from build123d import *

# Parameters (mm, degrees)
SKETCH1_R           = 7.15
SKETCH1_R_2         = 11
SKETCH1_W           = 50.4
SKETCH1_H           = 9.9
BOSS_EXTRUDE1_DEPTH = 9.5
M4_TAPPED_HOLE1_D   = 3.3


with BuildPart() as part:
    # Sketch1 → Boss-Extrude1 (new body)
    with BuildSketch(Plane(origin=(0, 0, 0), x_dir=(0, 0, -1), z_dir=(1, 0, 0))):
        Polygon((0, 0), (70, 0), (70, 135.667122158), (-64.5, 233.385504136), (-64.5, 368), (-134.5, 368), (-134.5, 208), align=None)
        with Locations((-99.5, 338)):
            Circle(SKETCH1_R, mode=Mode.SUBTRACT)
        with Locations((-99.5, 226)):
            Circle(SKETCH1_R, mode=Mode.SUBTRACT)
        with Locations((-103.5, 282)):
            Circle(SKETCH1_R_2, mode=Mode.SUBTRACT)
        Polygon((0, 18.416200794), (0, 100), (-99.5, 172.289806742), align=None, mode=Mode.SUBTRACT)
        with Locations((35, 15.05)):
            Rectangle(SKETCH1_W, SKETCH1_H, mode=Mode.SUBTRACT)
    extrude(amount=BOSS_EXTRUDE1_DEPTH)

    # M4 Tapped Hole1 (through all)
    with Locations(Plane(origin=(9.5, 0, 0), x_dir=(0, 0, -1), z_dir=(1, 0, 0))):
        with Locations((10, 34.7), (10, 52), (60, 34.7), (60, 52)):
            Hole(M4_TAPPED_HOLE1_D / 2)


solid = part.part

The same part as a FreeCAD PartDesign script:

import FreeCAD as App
import Part
import Sketcher
from FreeCAD import Vector


def add_polygon(sketch, points):
    """Adds a closed chain of lines whose ends are joined by coincident constraints."""
    first, n = sketch.GeometryCount, len(points)
    for a, b in zip(points, points[1:] + points[:1]):
        sketch.addGeometry(Part.LineSegment(App.Vector(*a, 0), App.Vector(*b, 0)), False)
    for i in range(n):
        sketch.addConstraint(Sketcher.Constraint("Coincident", first + i, 2, first + (i + 1) % n, 1))

doc = App.newDocument("Part")
body = doc.addObject("PartDesign::Body", "Body")

# Sketch on YZ plane
sketch1 = body.newObject("Sketcher::SketchObject", "Sketch")
sketch1.AttachmentSupport = (doc.getObject("YZ_Plane"), [""])
sketch1.MapMode = "FlatFace"
add_polygon(sketch1, [(0, 0), (0, -70), (135.667122, -70), (233.385504, 64.5), (368, 64.5), (368, 134.5), (208, 134.5)])  # lines 0-6
add_polygon(sketch1, [(100, 0), (18.416201, 0), (172.289807, 99.5)])  # lines 7-9
add_polygon(sketch1, [(10.1, -60.2), (10.1, -9.8), (20, -9.8), (20, -60.2)])  # lines 10-13
sketch1.addGeometry(Part.Circle(Vector(226, 99.5, 0), Vector(0, 0, 1), 7.15), False)  # 14
sketch1.addGeometry(Part.Circle(Vector(282, 103.5, 0), Vector(0, 0, 1), 11), False)  # 15
sketch1.addGeometry(Part.Circle(Vector(338, 99.5, 0), Vector(0, 0, 1), 7.15), False)  # 16
sketch1.addConstraint(Sketcher.Constraint("Vertical", 0))
sketch1.addConstraint(Sketcher.Constraint("Horizontal", 1))
sketch1.addConstraint(Sketcher.Constraint("Horizontal", 3))
sketch1.addConstraint(Sketcher.Constraint("Vertical", 4))
sketch1.addConstraint(Sketcher.Constraint("Horizontal", 5))
sketch1.addConstraint(Sketcher.Constraint("Horizontal", 7))
sketch1.addConstraint(Sketcher.Constraint("Vertical", 10))
sketch1.addConstraint(Sketcher.Constraint("Horizontal", 11))
sketch1.addConstraint(Sketcher.Constraint("Vertical", 12))
sketch1.addConstraint(Sketcher.Constraint("Horizontal", 13))
sketch1.addConstraint(Sketcher.Constraint("Coincident", 6, 2, -1, 1))
sketch1.addConstraint(Sketcher.Constraint("Equal", 14, 16))
sketch1.addConstraint(Sketcher.Constraint("PointOnObject", 7, 2, -1))
sketch1.addConstraint(Sketcher.Constraint("Parallel", 6, 8))
sketch1.addConstraint(Sketcher.Constraint("Parallel", 2, 9))
sketch1.addConstraint(Sketcher.Constraint("Horizontal", 14, 3, 16, 3))
sketch1.addConstraint(Sketcher.Constraint("Horizontal", 16, 3, 8, 2))
sketch1.addConstraint(Sketcher.Constraint("Equal", 0, 4))
sketch1.addConstraint(Sketcher.Constraint("Diameter", 15, 22.0))
sketch1.addConstraint(Sketcher.Constraint("Diameter", 14, 14.3))
sketch1.addConstraint(Sketcher.Constraint("DistanceX", 5, 2, 5, 1, 160.0))
sketch1.addConstraint(Sketcher.Constraint("DistanceY", 0, 2, 0, 1, 70.0))
sketch1.addConstraint(Sketcher.Constraint("DistanceX", 11, 1, 11, 2, 9.9))
sketch1.addConstraint(Sketcher.Constraint("DistanceY", 10, 1, 10, 2, 50.4))
sketch1.addConstraint(Sketcher.Constraint("DistanceX", -1, 1, 14, 3, 226.0))
sketch1.addConstraint(Sketcher.Constraint("DistanceX", -1, 1, 15, 3, 282.0))
sketch1.addConstraint(Sketcher.Constraint("DistanceX", -1, 1, 16, 3, 338.0))
sketch1.addConstraint(Sketcher.Constraint("DistanceX", -1, 1, 3, 2, 368.0))
sketch1.addConstraint(Sketcher.Constraint("DistanceX", -1, 1, 9, 2, 100.0))
sketch1.addConstraint(Sketcher.Constraint("DistanceX", -1, 1, 11, 2, 20.0))
sketch1.addConstraint(Sketcher.Constraint("DistanceY", 14, 3, 15, 3, 4.0))
sketch1.addConstraint(Sketcher.Constraint("DistanceY", 2, 2, 14, 3, 35.0))
sketch1.addConstraint(Sketcher.Constraint("DistanceY", -1, 1, 14, 3, 99.5))
sketch1.addConstraint(Sketcher.Constraint("DistanceY", 10, 2, -1, 1, 9.8))
sketch1.addConstraint(Sketcher.Constraint("DistanceX", 7, 2, 7, 1, 81.583799))
sketch1.addConstraint(Sketcher.Constraint("DistanceX", 1, 1, 1, 2, 135.667122))
pad1 = body.newObject("PartDesign::Pad", "Pad")
pad1.Profile = sketch1
pad1.Length = 9.5

# Sketch on YZ plane
sketch2 = body.newObject("Sketcher::SketchObject", "Sketch001")
sketch2.AttachmentSupport = (doc.getObject("YZ_Plane"), [""])
sketch2.MapMode = "FlatFace"
sketch2.AttachmentOffset = App.Placement(Vector(0, 0, 9.5), App.Rotation())
sketch2.addGeometry(Part.Circle(Vector(34.7, -10, 0), Vector(0, 0, 1), 1.65), False)
sketch2.addGeometry(Part.Circle(Vector(52, -10, 0), Vector(0, 0, 1), 1.65), False)
sketch2.addGeometry(Part.Circle(Vector(34.7, -60, 0), Vector(0, 0, 1), 1.65), False)
sketch2.addGeometry(Part.Circle(Vector(52, -60, 0), Vector(0, 0, 1), 1.65), False)
sketch2.addConstraint(Sketcher.Constraint("Equal", 0, 1))
sketch2.addConstraint(Sketcher.Constraint("Equal", 1, 2))
sketch2.addConstraint(Sketcher.Constraint("Equal", 2, 3))
sketch2.addConstraint(Sketcher.Constraint("Horizontal", 0, 3, 1, 3))
sketch2.addConstraint(Sketcher.Constraint("Horizontal", 2, 3, 3, 3))
sketch2.addConstraint(Sketcher.Constraint("Vertical", 0, 3, 2, 3))
sketch2.addConstraint(Sketcher.Constraint("Vertical", 1, 3, 3, 3))
sketch2.addConstraint(Sketcher.Constraint("Diameter", 0, 3.3))
sketch2.addConstraint(Sketcher.Constraint("DistanceY", 0, 3, -1, 1, 10.0))
sketch2.addConstraint(Sketcher.Constraint("DistanceX", -1, 1, 1, 3, 52.0))
sketch2.addConstraint(Sketcher.Constraint("DistanceY", 2, 3, -1, 1, 60.0))
sketch2.addConstraint(Sketcher.Constraint("DistanceX", -1, 1, 0, 3, 34.7))
doc.recompute()
hole = body.newObject("PartDesign::Hole", "Hole")
hole.Profile = sketch2
hole.ThreadType = "None"
hole.Diameter = 3.3
hole.DepthType = "ThroughAll"

doc.recompute()
